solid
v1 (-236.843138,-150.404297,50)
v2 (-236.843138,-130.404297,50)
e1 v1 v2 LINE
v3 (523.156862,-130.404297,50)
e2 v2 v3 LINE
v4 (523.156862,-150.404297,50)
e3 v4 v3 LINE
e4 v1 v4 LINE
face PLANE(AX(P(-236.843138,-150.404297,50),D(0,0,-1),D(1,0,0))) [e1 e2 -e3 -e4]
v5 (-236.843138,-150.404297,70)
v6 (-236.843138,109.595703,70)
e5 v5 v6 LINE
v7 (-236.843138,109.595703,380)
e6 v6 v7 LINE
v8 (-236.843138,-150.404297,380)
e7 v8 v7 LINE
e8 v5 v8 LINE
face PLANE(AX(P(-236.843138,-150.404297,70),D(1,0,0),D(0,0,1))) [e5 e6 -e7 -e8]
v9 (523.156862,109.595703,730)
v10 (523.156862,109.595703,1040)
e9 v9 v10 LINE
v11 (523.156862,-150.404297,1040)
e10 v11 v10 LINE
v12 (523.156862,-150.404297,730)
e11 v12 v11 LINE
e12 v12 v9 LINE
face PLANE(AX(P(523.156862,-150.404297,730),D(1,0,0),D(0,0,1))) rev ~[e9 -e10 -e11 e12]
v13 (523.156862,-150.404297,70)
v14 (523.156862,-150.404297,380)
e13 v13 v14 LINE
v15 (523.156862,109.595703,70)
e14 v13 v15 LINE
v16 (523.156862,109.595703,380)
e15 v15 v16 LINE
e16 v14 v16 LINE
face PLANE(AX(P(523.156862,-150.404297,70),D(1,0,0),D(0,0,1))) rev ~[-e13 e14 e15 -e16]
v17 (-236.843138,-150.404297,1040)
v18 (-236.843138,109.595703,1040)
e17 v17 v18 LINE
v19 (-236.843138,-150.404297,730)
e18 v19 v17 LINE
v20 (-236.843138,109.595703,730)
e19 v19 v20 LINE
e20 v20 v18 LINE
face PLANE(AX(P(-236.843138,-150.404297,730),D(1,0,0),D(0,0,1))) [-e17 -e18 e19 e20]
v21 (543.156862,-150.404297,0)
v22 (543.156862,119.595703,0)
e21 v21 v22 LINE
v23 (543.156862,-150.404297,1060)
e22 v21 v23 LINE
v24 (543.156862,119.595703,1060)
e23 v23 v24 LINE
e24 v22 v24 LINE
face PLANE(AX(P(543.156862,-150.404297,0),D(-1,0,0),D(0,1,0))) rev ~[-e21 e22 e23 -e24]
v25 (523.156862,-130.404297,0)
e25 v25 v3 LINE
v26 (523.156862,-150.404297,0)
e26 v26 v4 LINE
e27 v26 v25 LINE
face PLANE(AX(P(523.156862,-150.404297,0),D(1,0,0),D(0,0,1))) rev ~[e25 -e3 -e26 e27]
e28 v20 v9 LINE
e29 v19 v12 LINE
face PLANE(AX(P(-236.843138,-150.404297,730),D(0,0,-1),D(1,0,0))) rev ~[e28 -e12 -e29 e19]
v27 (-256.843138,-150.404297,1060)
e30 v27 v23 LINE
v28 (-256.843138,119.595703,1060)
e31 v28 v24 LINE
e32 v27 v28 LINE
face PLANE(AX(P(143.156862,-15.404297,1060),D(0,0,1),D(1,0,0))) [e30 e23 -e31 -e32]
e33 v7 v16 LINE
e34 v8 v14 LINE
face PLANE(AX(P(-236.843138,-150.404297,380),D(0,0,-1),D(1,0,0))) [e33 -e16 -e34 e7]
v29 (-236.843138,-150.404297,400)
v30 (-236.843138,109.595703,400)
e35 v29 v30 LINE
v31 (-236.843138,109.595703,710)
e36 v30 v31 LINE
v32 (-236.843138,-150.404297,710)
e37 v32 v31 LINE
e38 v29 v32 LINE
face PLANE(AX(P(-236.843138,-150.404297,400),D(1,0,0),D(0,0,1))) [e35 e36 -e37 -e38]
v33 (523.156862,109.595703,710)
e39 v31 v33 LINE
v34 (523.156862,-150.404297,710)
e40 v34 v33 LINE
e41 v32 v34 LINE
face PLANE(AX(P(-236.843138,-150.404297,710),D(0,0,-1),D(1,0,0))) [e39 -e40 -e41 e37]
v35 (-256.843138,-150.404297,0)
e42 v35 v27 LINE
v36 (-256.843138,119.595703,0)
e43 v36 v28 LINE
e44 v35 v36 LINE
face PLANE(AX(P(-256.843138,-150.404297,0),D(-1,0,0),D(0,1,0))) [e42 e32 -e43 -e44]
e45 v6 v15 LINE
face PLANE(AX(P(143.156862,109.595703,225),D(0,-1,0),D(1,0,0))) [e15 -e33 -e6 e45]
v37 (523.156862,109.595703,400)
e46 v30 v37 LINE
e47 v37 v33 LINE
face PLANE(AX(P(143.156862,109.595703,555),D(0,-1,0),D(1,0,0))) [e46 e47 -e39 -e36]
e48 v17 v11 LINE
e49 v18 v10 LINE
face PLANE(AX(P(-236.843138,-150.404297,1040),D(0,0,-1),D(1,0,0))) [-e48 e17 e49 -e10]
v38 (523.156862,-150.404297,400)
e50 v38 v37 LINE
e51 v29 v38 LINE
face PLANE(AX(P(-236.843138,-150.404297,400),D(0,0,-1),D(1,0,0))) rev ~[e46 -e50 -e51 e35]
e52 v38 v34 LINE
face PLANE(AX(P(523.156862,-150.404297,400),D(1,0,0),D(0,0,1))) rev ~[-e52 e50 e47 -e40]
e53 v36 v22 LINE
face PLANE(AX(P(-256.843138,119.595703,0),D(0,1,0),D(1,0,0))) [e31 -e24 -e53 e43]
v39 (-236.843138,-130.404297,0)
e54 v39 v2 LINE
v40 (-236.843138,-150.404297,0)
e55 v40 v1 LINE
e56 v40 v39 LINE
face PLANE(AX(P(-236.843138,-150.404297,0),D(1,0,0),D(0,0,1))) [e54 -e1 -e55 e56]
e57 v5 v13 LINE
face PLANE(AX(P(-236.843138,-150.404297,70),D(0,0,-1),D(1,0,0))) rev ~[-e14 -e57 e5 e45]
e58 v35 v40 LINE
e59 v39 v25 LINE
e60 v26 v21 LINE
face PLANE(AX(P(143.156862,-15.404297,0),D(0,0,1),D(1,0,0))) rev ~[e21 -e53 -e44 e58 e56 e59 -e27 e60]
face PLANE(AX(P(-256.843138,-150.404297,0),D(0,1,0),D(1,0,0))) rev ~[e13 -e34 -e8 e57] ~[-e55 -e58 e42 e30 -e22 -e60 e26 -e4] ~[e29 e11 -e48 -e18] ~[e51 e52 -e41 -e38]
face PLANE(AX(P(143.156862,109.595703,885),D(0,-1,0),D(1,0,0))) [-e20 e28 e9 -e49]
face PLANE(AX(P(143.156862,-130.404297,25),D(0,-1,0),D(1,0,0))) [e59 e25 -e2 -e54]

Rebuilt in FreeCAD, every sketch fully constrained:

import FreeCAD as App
import Part
import Sketcher

V = App.Vector


def add_polygon(sketch, points):
    """Adds a closed chain of lines whose ends are joined by coincident constraints."""
    first, n = sketch.GeometryCount, len(points)
    for a, b in zip(points, points[1:] + points[:1]):
        sketch.addGeometry(Part.LineSegment(App.Vector(*a, 0), App.Vector(*b, 0)), False)
    for i in range(n):
        sketch.addConstraint(Sketcher.Constraint("Coincident", first + i, 2, first + (i + 1) % n, 1))

doc = App.newDocument("Part")
body = doc.addObject("PartDesign::Body", "Body")

# Sketch on XY plane
sketch1 = doc.addObject("Sketcher::SketchObject", "Sketch")
body.addObject(sketch1)
sketch1.AttachmentSupport = (doc.XY_Plane, [""])
sketch1.MapMode = "FlatFace"
add_polygon(sketch1, [(-257, 120), (-257, -150), (543, -150), (543, 120)])  # lines 0-3
sketch1.addConstraint(Sketcher.Constraint("Vertical", 0))
sketch1.addConstraint(Sketcher.Constraint("Horizontal", 1))
sketch1.addConstraint(Sketcher.Constraint("Vertical", 2))
sketch1.addConstraint(Sketcher.Constraint("Horizontal", 3))
sketch1.addConstraint(Sketcher.Constraint("DistanceX", 1, 1, 1, 2, 800.0))
sketch1.addConstraint(Sketcher.Constraint("DistanceY", 0, 2, 0, 1, 270.0))
sketch1.addConstraint(Sketcher.Constraint("DistanceX", 0, 2, -1, 1, 256.843138))
sketch1.addConstraint(Sketcher.Constraint("DistanceY", 0, 2, -1, 1, 150.404297))
pad1 = doc.addObject("PartDesign::Pad", "Pad")
body.addObject(pad1)
pad1.Profile = sketch1
pad1.Length = 1060

# Sketch on XZ plane
sketch2 = doc.addObject("Sketcher::SketchObject", "Sketch001")
body.addObject(sketch2)
sketch2.AttachmentSupport = (doc.XZ_Plane, [""])
sketch2.MapMode = "FlatFace"
sketch2.AttachmentOffset = App.Placement(V(0, 0, 150.404297), App.Rotation())
add_polygon(sketch2, [(-237, 50), (-237, 0), (523, 0), (523, 50)])  # lines 0-3
sketch2.addConstraint(Sketcher.Constraint("Vertical", 0))
sketch2.addConstraint(Sketcher.Constraint("Horizontal", 1))
sketch2.addConstraint(Sketcher.Constraint("Vertical", 2))
sketch2.addConstraint(Sketcher.Constraint("Horizontal", 3))
sketch2.addConstraint(Sketcher.Constraint("PointOnObject", 0, 2, -1))
sketch2.addConstraint(Sketcher.Constraint("DistanceX", 1, 1, 1, 2, 760.0))
sketch2.addConstraint(Sketcher.Constraint("DistanceY", 0, 2, 0, 1, 50.0))
sketch2.addConstraint(Sketcher.Constraint("DistanceX", 0, 2, -1, 1, 236.843138))
pocket1 = doc.addObject("PartDesign::Pocket", "Pocket")
body.addObject(pocket1)
pocket1.Profile = sketch2
pocket1.Length = 20

# Sketch on XZ plane
sketch3 = doc.addObject("Sketcher::SketchObject", "Sketch002")
body.addObject(sketch3)
sketch3.AttachmentSupport = (doc.XZ_Plane, [""])
sketch3.MapMode = "FlatFace"
sketch3.AttachmentOffset = App.Placement(V(0, 0, 150.404297), App.Rotation())
add_polygon(sketch3, [(-237, 1040), (-237, 730), (523, 730), (523, 1040)])  # lines 0-3
add_polygon(sketch3, [(-237, 710), (-237, 400), (523, 400), (523, 710)])  # lines 4-7
add_polygon(sketch3, [(-237, 380), (-237, 70), (523, 70), (523, 380)])  # lines 8-11
sketch3.addConstraint(Sketcher.Constraint("Vertical", 0))
sketch3.addConstraint(Sketcher.Constraint("Horizontal", 1))
sketch3.addConstraint(Sketcher.Constraint("Vertical", 2))
sketch3.addConstraint(Sketcher.Constraint("Horizontal", 3))
sketch3.addConstraint(Sketcher.Constraint("Vertical", 4))
sketch3.addConstraint(Sketcher.Constraint("Horizontal", 5))
sketch3.addConstraint(Sketcher.Constraint("Vertical", 6))
sketch3.addConstraint(Sketcher.Constraint("Horizontal", 7))
sketch3.addConstraint(Sketcher.Constraint("Vertical", 8))
sketch3.addConstraint(Sketcher.Constraint("Horizontal", 9))
sketch3.addConstraint(Sketcher.Constraint("Vertical", 10))
sketch3.addConstraint(Sketcher.Constraint("Horizontal", 11))
sketch3.addConstraint(Sketcher.Constraint("Vertical", 3, 2, 4, 2))
sketch3.addConstraint(Sketcher.Constraint("Vertical", 2, 2, 5, 2))
sketch3.addConstraint(Sketcher.Constraint("Vertical", 7, 2, 8, 2))
sketch3.addConstraint(Sketcher.Constraint("Vertical", 6, 2, 9, 2))
sketch3.addConstraint(Sketcher.Constraint("Equal", 2, 4))
sketch3.addConstraint(Sketcher.Constraint("Equal", 6, 8))
sketch3.addConstraint(Sketcher.Constraint("DistanceX", 1, 1, 1, 2, 760.0))
sketch3.addConstraint(Sketcher.Constraint("DistanceY", 0, 2, 0, 1, 310.0))
sketch3.addConstraint(Sketcher.Constraint("DistanceY", -1, 1, 0, 2, 730.0))
sketch3.addConstraint(Sketcher.Constraint("DistanceY", -1, 1, 4, 2, 400.0))
sketch3.addConstraint(Sketcher.Constraint("DistanceY", -1, 1, 8, 2, 70.0))
sketch3.addConstraint(Sketcher.Constraint("DistanceX", 0, 2, -1, 1, 236.843138))
pocket2 = doc.addObject("PartDesign::Pocket", "Pocket001")
body.addObject(pocket2)
pocket2.Profile = sketch3
pocket2.Length = 260

doc.recompute()
